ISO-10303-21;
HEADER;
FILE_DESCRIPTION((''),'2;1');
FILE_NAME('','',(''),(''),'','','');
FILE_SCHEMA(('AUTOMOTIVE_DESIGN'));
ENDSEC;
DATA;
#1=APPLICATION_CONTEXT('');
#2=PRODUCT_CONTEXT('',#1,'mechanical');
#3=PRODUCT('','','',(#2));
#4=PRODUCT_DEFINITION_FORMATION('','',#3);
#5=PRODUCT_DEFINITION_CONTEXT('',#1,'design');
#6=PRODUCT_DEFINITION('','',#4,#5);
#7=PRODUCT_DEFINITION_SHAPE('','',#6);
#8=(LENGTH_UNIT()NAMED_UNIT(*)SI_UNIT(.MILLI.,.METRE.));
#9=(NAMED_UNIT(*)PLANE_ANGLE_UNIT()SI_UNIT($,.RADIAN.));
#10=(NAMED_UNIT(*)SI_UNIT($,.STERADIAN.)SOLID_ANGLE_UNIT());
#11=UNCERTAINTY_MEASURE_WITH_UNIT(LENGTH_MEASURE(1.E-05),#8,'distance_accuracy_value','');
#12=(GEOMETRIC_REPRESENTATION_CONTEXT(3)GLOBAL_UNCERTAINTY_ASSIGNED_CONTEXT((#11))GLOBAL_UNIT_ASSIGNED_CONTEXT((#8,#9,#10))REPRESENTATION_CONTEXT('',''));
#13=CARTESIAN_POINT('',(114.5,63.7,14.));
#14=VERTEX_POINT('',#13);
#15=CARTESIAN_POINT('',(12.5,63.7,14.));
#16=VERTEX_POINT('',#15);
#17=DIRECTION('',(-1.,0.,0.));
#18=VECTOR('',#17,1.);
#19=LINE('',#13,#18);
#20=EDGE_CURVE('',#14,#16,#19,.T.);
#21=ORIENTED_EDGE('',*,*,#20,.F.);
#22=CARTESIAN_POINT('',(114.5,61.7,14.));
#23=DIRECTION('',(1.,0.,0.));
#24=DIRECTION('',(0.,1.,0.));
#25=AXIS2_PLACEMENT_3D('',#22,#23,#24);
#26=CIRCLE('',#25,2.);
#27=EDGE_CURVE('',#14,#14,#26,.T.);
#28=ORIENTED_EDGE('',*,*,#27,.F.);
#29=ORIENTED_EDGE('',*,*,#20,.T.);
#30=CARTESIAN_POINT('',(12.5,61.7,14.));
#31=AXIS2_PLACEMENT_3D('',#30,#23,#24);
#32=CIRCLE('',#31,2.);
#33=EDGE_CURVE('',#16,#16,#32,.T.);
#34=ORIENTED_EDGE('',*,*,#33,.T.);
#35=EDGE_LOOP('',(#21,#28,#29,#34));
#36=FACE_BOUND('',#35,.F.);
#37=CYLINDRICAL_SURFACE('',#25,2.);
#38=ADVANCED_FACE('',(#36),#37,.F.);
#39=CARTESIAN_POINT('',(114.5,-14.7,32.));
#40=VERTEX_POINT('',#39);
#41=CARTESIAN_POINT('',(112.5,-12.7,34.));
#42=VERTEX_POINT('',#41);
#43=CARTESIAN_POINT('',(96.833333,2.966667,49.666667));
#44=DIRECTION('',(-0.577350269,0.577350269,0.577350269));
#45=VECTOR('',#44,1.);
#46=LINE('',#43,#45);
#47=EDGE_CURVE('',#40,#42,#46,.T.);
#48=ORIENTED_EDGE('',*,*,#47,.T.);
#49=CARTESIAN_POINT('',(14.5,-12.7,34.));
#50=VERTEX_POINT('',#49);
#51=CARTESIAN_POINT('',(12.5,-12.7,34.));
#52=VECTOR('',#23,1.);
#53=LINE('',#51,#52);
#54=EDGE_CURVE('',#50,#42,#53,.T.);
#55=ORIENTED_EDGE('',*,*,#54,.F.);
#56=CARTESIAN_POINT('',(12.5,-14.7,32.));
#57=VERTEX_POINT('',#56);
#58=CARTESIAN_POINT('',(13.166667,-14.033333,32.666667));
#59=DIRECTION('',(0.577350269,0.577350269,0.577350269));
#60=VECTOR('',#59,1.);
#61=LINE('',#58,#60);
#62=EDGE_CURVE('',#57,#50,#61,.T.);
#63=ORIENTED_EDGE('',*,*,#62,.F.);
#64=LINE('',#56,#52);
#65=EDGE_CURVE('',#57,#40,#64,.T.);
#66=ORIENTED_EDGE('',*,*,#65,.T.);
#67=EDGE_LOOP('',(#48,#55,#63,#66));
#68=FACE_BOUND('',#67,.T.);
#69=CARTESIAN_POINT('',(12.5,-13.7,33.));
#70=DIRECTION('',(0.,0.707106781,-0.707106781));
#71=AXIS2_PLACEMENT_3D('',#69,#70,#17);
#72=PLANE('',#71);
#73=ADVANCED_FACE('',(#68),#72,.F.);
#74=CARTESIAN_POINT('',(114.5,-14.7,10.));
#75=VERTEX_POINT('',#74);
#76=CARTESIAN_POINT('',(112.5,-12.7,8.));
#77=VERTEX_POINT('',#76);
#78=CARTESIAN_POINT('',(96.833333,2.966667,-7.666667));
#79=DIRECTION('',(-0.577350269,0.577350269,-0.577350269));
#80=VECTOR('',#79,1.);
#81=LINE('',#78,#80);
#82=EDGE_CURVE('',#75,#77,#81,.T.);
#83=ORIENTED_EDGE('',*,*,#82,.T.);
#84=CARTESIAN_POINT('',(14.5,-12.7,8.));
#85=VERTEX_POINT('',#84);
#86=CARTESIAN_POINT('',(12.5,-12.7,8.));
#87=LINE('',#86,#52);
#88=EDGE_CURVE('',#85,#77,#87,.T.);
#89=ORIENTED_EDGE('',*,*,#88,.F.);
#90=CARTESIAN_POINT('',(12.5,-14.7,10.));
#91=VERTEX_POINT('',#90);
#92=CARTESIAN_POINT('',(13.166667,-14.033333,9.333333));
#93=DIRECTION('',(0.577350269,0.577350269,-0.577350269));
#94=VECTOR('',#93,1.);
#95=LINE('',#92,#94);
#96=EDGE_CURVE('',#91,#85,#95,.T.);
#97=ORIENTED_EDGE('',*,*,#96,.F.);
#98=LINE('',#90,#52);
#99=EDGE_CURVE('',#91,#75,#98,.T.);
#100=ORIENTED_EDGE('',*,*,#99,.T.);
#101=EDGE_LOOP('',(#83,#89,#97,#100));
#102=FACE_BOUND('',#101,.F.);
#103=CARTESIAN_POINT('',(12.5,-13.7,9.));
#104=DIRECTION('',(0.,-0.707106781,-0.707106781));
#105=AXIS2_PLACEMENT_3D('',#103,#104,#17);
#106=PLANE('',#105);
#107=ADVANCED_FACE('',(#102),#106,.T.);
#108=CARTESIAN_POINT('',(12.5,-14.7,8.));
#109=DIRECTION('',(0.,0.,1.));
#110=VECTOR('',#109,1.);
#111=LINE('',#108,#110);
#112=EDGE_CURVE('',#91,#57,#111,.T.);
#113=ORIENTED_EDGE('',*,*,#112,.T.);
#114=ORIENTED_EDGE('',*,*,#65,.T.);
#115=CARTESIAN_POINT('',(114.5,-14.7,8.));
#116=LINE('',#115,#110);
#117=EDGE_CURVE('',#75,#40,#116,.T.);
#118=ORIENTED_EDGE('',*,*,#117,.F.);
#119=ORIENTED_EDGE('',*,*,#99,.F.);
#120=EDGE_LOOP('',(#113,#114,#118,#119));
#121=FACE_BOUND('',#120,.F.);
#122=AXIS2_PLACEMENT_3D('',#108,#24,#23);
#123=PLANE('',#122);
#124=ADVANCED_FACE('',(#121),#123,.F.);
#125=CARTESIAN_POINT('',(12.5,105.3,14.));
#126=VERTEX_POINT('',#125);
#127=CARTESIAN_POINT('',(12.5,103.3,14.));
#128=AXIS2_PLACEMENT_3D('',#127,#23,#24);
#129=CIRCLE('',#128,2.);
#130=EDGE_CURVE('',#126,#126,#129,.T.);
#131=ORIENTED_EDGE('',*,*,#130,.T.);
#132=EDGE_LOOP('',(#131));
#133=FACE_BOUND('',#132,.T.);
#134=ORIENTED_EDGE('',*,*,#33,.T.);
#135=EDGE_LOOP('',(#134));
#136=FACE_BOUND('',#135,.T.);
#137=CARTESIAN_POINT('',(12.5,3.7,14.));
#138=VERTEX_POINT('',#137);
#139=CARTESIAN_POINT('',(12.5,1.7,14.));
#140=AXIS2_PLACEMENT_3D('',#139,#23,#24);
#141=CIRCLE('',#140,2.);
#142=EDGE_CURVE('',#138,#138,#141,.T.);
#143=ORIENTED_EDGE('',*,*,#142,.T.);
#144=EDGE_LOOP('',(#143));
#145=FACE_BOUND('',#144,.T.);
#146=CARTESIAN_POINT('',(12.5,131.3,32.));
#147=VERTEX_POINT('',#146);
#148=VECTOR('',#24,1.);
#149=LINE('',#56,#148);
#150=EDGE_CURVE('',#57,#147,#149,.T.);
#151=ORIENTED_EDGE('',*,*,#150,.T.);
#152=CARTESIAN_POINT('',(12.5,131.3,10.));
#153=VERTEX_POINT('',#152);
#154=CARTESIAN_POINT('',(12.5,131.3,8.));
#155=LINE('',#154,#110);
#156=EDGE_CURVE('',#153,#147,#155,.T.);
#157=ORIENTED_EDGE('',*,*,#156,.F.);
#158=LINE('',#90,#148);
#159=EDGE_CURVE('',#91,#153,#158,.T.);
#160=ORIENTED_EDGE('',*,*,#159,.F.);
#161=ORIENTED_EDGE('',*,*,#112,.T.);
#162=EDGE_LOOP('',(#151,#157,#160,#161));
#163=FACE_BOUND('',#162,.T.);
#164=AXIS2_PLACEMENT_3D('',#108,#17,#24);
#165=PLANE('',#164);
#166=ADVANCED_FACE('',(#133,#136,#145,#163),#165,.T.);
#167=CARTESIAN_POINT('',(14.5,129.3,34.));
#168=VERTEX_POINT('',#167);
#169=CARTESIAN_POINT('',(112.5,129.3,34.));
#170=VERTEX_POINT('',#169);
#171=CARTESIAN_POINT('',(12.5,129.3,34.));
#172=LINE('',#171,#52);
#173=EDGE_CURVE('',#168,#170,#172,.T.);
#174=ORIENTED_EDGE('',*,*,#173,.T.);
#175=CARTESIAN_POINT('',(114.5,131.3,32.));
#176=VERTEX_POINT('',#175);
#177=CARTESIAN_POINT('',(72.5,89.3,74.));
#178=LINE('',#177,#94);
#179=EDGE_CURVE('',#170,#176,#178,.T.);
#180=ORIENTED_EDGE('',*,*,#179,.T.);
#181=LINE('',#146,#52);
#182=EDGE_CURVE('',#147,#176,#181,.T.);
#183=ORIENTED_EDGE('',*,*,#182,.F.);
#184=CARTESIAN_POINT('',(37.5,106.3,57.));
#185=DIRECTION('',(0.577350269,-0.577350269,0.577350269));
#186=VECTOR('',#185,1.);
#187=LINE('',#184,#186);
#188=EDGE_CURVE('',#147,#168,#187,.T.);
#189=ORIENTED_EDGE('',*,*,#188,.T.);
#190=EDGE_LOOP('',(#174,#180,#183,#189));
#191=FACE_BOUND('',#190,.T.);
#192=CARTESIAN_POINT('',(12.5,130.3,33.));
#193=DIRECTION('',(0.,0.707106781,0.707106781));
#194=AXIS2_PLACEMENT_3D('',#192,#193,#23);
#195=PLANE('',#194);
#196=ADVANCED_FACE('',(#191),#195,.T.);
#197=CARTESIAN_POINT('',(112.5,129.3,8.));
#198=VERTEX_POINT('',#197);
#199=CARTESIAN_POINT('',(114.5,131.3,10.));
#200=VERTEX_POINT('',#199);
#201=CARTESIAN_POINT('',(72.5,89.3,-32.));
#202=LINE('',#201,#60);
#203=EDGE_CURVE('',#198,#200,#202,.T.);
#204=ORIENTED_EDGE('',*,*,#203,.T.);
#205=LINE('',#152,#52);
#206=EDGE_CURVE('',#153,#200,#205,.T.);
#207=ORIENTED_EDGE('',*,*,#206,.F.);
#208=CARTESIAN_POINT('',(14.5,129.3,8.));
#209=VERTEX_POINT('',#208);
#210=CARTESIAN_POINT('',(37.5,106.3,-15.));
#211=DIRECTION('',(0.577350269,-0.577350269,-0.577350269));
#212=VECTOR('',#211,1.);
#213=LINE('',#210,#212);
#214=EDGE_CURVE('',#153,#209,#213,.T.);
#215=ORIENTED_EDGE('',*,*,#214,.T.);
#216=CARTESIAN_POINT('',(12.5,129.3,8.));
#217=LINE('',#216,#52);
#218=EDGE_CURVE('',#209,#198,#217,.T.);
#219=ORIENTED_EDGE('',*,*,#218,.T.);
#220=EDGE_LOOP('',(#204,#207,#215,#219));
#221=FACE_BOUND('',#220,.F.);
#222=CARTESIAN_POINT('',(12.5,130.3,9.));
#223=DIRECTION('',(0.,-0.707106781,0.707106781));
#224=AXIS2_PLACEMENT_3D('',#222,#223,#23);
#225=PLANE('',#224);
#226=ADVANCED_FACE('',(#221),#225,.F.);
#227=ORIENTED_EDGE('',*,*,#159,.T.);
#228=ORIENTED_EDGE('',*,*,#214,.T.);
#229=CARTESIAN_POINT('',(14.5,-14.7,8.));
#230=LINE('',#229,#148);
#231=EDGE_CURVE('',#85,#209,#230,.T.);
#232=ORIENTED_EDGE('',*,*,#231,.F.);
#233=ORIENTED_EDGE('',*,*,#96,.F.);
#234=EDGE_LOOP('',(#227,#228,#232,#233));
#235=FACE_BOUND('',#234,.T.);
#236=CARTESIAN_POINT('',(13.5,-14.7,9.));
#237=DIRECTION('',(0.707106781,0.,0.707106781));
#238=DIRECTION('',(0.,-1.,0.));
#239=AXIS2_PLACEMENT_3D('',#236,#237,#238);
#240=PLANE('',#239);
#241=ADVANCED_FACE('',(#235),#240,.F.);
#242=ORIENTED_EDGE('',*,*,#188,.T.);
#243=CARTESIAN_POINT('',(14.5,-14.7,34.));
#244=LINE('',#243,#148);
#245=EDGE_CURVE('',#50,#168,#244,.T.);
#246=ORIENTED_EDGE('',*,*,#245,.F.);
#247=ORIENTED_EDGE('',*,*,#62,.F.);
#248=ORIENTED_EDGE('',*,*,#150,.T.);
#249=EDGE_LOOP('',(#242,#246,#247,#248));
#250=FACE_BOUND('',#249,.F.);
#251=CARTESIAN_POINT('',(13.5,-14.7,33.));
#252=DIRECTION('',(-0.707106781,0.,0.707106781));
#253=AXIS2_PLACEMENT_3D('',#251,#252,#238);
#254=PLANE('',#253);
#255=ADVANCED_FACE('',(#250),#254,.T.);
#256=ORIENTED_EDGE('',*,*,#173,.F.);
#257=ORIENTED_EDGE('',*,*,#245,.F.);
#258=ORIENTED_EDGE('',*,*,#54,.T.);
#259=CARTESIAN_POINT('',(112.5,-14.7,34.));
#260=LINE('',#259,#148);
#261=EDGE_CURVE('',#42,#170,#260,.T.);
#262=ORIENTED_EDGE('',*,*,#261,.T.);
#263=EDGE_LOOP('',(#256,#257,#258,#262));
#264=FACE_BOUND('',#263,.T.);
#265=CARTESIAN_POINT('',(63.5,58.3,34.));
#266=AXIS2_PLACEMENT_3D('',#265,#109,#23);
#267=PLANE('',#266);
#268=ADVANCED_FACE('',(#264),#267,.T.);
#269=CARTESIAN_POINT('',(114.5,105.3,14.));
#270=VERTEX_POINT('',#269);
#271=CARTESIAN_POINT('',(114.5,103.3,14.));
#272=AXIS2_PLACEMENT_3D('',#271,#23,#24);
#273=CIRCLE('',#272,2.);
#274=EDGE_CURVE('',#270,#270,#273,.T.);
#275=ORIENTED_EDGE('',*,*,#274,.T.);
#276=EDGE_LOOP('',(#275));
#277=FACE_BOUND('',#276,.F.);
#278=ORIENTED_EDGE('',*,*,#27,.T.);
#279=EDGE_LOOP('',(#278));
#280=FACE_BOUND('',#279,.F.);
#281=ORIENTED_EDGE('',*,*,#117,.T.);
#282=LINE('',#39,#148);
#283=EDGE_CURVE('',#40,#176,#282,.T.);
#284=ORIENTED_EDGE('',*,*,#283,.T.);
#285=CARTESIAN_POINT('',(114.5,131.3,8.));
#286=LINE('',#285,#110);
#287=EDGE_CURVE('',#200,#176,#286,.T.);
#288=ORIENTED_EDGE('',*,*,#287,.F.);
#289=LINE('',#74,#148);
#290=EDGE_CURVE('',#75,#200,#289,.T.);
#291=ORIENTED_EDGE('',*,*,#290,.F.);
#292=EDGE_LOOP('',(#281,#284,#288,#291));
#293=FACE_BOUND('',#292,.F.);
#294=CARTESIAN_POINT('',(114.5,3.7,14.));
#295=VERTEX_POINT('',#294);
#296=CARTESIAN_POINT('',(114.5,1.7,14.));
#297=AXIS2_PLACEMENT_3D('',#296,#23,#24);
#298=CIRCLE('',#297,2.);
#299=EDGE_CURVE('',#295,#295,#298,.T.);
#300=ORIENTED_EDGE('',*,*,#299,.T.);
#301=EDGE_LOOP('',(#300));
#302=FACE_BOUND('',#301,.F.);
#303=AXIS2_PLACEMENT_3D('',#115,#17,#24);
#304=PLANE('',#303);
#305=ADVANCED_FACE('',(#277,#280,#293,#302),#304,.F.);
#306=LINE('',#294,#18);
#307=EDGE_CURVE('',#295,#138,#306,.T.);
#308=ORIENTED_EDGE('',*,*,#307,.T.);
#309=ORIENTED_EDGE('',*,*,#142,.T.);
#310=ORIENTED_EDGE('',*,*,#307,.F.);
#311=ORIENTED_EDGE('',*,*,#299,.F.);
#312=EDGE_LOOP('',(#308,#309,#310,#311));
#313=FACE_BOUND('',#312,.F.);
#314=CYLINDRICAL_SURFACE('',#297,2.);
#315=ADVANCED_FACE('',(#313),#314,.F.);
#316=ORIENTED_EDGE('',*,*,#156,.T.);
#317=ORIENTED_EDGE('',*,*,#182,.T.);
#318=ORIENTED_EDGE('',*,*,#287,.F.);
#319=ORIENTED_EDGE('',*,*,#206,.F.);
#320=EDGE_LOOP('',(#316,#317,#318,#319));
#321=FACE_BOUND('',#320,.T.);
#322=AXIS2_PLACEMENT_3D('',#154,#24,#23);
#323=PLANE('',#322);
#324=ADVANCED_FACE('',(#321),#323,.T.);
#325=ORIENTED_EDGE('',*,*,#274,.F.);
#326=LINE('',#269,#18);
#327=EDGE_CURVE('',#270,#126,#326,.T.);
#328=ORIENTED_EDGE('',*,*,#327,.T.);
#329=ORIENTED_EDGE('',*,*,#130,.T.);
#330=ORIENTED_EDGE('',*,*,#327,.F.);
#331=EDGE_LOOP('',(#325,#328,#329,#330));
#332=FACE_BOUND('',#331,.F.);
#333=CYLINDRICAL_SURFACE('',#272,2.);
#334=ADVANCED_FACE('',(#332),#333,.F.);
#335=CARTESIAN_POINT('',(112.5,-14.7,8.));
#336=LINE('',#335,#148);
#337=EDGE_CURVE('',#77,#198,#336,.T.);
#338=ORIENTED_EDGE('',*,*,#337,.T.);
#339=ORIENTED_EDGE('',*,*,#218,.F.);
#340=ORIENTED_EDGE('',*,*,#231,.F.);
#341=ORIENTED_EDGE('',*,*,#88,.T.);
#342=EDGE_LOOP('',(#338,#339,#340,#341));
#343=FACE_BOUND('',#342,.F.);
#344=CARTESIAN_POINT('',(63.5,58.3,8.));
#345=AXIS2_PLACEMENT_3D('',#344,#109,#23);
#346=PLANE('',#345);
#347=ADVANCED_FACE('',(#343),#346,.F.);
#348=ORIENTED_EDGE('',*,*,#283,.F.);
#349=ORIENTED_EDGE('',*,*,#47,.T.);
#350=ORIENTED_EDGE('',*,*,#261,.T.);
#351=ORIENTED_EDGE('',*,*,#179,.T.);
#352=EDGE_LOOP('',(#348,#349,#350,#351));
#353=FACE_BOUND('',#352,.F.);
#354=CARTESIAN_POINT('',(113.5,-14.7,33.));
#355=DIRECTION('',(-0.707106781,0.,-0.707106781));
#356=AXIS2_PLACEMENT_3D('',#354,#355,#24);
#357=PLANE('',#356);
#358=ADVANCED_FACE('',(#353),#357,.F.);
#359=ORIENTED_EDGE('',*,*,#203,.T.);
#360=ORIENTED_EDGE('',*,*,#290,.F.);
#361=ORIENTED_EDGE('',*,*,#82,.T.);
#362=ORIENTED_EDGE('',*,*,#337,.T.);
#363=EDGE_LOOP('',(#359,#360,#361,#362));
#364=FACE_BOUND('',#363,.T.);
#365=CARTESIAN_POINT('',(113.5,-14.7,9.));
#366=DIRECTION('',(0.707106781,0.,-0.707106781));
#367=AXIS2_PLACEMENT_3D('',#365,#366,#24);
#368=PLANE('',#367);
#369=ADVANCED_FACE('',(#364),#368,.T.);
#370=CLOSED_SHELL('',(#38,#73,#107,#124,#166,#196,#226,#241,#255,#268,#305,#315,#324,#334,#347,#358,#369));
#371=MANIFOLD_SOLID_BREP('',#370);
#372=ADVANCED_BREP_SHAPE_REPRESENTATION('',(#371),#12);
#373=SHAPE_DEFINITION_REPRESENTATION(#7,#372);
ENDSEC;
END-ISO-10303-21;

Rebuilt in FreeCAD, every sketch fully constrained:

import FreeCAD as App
import Part
import Sketcher
Q = App.Units.Quantity


def edges_at(feature, points):
    """Names of the edges that pass closest to the given points."""
    edges = feature.Shape.Edges
    near = lambda p: min(range(len(edges)), key=lambda i: edges[i].distToShape(Part.Vertex(*p))[0])
    return sorted({f"Edge{near(p) + 1}" for p in points})


def add_polygon(sketch, points):
    """Adds a closed chain of lines whose ends are joined by coincident constraints."""
    first, n = sketch.GeometryCount, len(points)
    for a, b in zip(points, points[1:] + points[:1]):
        sketch.addGeometry(Part.LineSegment(App.Vector(*a, 0), App.Vector(*b, 0)), False)
    for i in range(n):
        sketch.addConstraint(Sketcher.Constraint("Coincident", first + i, 2, first + (i + 1) % n, 1))

doc = App.newDocument("Part")
body = doc.addObject("PartDesign::Body", "Body")

sketch1 = body.newObject("Sketcher::SketchObject", "Sketch")
sketch1.AttachmentSupport = (doc.getObject("XY_Plane"), [""])
sketch1.MapMode = "FlatFace"
add_polygon(sketch1, [(-51, 73), (-51, -73), (51, -73), (51, 73)])
sketch1.addConstraint(Sketcher.Constraint("Vertical", 0))
sketch1.addConstraint(Sketcher.Constraint("Horizontal", 1))
sketch1.addConstraint(Sketcher.Constraint("Vertical", 2))
sketch1.addConstraint(Sketcher.Constraint("Horizontal", 3))
sketch1.addConstraint(Sketcher.Constraint("Symmetric", 0, 2, 2, 2, -1, 1))
sketch1.addConstraint(Sketcher.Constraint("DistanceX", 1, 1, 1, 2, Q("102 mm")))
sketch1.addConstraint(Sketcher.Constraint("DistanceY", 0, 2, 0, 1, Q("146 mm")))
pad1 = body.newObject("PartDesign::Pad", "Pad")
pad1.Profile = sketch1
pad1.Length = 26

sketch2 = body.newObject("Sketcher::SketchObject", "Sketch001")
sketch2.AttachmentSupport = (doc.getObject("YZ_Plane"), [""])
sketch2.MapMode = "FlatFace"
sketch2.AttachmentOffset = App.Placement(App.Vector(0, 0, 51), App.Rotation())
sketch2.addGeometry(Part.Circle(App.Vector(45, 6, 0), App.Vector(0, 0, 1), 2), False)
sketch2.addGeometry(Part.Circle(App.Vector(3.4, 6, 0), App.Vector(0, 0, 1), 2), False)
sketch2.addGeometry(Part.Circle(App.Vector(-56.6, 6, 0), App.Vector(0, 0, 1), 2), False)
sketch2.addConstraint(Sketcher.Constraint("Equal", 0, 1))
sketch2.addConstraint(Sketcher.Constraint("Equal", 1, 2))
sketch2.addConstraint(Sketcher.Constraint("Horizontal", 0, 3, 1, 3))
sketch2.addConstraint(Sketcher.Constraint("Horizontal", 1, 3, 2, 3))
sketch2.addConstraint(Sketcher.Constraint("Diameter", 0, Q("4 mm")))
sketch2.addConstraint(Sketcher.Constraint("DistanceX", -1, 1, 0, 3, Q("45 mm")))
sketch2.addConstraint(Sketcher.Constraint("DistanceY", -1, 1, 0, 3, Q("6 mm")))
sketch2.addConstraint(Sketcher.Constraint("DistanceX", 2, 3, 1, 3, Q("60 mm")))
sketch2.addConstraint(Sketcher.Constraint("DistanceX", -1, 1, 1, 3, Q("3.4 mm")))
pocket1 = body.newObject("PartDesign::Pocket", "Pocket")
pocket1.Profile = sketch2
pocket1.Type = "ThroughAll"
doc.recompute()

chamfer = body.newObject("PartDesign::Chamfer", "Chamfer")
chamfer.Base = (pocket1, edges_at(pocket1, [
    (-51, 0, 0),
    (0, -73, 0),
    (51, 0, 0),
    (0, 73, 0),
    (-51, 0, 26),
    (0, -73, 26),
    (51, 0, 26),
    (0, 73, 26),
]))
chamfer.Size = 2
body2 = doc.addObject("PartDesign::Body", "Body001")
doc.recompute()

body.Placement = App.Placement(App.Vector(63.5, 58.3, 8), App.Rotation(App.Vector(0, 0, 1), 0))
boolean = body2.newObject("PartDesign::Boolean", "Boolean")
boolean.Type = "Fuse"
boolean.addObjects([body])

doc.recompute()
